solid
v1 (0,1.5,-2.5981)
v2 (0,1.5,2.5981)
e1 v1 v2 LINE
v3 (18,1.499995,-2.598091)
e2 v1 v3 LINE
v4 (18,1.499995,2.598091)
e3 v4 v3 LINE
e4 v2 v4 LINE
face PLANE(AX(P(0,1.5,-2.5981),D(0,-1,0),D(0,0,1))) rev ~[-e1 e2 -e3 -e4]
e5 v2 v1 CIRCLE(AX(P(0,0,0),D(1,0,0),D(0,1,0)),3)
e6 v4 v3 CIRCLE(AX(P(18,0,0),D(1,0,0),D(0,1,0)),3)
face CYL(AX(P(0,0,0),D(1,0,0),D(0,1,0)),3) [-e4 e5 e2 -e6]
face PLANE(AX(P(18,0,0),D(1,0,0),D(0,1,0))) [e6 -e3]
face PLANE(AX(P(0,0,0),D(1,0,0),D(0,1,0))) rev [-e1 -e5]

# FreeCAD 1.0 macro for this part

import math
import FreeCAD as App
import Part
import Sketcher

V = App.Vector


def add_polygon(sketch, points):
    """Adds a closed chain of lines whose ends are joined by coincident constraints."""
    first, n = sketch.GeometryCount, len(points)
    for a, b in zip(points, points[1:] + points[:1]):
        sketch.addGeometry(Part.LineSegment(App.Vector(*a, 0), App.Vector(*b, 0)), False)
    for i in range(n):
        sketch.addConstraint(Sketcher.Constraint("Coincident", first + i, 2, first + (i + 1) % n, 1))

doc = App.newDocument("Part")
body = doc.addObject("PartDesign::Body", "Body")

# Sketch on XY plane
sketch1 = body.newObject("Sketcher::SketchObject", "Sketch")
sketch1.AttachmentSupport = (doc.getObject("XY_Plane"), [""])
sketch1.MapMode = "FlatFace"
add_polygon(sketch1, [(0, 3), (0, 0), (18, 0), (18, 3)])  # lines 0-3
sketch1.addConstraint(Sketcher.Constraint("Vertical", 0))
sketch1.addConstraint(Sketcher.Constraint("Horizontal", 1))
sketch1.addConstraint(Sketcher.Constraint("Vertical", 2))
sketch1.addConstraint(Sketcher.Constraint("Horizontal", 3))
sketch1.addConstraint(Sketcher.Constraint("Coincident", 0, 2, -1, 1))
sketch1.addConstraint(Sketcher.Constraint("DistanceX", 1, 1, 1, 2, 18.0))
sketch1.addConstraint(Sketcher.Constraint("DistanceY", 0, 2, 0, 1, 3.0))
revolution = body.newObject("PartDesign::Revolution", "Revolution")
revolution.Profile = sketch1
revolution.ReferenceAxis = (sketch1, ["H_Axis"])
revolution.Angle = 360

# Sketch on YZ plane
sketch2 = body.newObject("Sketcher::SketchObject", "Sketch001")
sketch2.AttachmentSupport = (doc.getObject("YZ_Plane"), [""])
sketch2.MapMode = "FlatFace"
sketch2.addGeometry(Part.LineSegment(V(1.5, -2.6, 0), V(1.5, 2.6, 0)), False)
sketch2.addGeometry(Part.ArcOfCircle(Part.Circle(V(0, 0, 0), V(0, 0, 1), 3), math.radians(-60), math.radians(60)), False)
sketch2.addConstraint(Sketcher.Constraint("Coincident", 0, 1, 1, 1))
sketch2.addConstraint(Sketcher.Constraint("Coincident", 1, 2, 0, 2))
sketch2.addConstraint(Sketcher.Constraint("Vertical", 0))
sketch2.addConstraint(Sketcher.Constraint("Coincident", 1, 3, -1, 1))
sketch2.addConstraint(Sketcher.Constraint("Radius", 1, 3.0))
sketch2.addConstraint(Sketcher.Constraint("DistanceX", -1, 1, 0, 1, 1.5))
pocket1 = body.newObject("PartDesign::Pocket", "Pocket")
pocket1.Profile = sketch2
pocket1.Type = "ThroughAll"
pocket1.Reversed = True

doc.recompute()
